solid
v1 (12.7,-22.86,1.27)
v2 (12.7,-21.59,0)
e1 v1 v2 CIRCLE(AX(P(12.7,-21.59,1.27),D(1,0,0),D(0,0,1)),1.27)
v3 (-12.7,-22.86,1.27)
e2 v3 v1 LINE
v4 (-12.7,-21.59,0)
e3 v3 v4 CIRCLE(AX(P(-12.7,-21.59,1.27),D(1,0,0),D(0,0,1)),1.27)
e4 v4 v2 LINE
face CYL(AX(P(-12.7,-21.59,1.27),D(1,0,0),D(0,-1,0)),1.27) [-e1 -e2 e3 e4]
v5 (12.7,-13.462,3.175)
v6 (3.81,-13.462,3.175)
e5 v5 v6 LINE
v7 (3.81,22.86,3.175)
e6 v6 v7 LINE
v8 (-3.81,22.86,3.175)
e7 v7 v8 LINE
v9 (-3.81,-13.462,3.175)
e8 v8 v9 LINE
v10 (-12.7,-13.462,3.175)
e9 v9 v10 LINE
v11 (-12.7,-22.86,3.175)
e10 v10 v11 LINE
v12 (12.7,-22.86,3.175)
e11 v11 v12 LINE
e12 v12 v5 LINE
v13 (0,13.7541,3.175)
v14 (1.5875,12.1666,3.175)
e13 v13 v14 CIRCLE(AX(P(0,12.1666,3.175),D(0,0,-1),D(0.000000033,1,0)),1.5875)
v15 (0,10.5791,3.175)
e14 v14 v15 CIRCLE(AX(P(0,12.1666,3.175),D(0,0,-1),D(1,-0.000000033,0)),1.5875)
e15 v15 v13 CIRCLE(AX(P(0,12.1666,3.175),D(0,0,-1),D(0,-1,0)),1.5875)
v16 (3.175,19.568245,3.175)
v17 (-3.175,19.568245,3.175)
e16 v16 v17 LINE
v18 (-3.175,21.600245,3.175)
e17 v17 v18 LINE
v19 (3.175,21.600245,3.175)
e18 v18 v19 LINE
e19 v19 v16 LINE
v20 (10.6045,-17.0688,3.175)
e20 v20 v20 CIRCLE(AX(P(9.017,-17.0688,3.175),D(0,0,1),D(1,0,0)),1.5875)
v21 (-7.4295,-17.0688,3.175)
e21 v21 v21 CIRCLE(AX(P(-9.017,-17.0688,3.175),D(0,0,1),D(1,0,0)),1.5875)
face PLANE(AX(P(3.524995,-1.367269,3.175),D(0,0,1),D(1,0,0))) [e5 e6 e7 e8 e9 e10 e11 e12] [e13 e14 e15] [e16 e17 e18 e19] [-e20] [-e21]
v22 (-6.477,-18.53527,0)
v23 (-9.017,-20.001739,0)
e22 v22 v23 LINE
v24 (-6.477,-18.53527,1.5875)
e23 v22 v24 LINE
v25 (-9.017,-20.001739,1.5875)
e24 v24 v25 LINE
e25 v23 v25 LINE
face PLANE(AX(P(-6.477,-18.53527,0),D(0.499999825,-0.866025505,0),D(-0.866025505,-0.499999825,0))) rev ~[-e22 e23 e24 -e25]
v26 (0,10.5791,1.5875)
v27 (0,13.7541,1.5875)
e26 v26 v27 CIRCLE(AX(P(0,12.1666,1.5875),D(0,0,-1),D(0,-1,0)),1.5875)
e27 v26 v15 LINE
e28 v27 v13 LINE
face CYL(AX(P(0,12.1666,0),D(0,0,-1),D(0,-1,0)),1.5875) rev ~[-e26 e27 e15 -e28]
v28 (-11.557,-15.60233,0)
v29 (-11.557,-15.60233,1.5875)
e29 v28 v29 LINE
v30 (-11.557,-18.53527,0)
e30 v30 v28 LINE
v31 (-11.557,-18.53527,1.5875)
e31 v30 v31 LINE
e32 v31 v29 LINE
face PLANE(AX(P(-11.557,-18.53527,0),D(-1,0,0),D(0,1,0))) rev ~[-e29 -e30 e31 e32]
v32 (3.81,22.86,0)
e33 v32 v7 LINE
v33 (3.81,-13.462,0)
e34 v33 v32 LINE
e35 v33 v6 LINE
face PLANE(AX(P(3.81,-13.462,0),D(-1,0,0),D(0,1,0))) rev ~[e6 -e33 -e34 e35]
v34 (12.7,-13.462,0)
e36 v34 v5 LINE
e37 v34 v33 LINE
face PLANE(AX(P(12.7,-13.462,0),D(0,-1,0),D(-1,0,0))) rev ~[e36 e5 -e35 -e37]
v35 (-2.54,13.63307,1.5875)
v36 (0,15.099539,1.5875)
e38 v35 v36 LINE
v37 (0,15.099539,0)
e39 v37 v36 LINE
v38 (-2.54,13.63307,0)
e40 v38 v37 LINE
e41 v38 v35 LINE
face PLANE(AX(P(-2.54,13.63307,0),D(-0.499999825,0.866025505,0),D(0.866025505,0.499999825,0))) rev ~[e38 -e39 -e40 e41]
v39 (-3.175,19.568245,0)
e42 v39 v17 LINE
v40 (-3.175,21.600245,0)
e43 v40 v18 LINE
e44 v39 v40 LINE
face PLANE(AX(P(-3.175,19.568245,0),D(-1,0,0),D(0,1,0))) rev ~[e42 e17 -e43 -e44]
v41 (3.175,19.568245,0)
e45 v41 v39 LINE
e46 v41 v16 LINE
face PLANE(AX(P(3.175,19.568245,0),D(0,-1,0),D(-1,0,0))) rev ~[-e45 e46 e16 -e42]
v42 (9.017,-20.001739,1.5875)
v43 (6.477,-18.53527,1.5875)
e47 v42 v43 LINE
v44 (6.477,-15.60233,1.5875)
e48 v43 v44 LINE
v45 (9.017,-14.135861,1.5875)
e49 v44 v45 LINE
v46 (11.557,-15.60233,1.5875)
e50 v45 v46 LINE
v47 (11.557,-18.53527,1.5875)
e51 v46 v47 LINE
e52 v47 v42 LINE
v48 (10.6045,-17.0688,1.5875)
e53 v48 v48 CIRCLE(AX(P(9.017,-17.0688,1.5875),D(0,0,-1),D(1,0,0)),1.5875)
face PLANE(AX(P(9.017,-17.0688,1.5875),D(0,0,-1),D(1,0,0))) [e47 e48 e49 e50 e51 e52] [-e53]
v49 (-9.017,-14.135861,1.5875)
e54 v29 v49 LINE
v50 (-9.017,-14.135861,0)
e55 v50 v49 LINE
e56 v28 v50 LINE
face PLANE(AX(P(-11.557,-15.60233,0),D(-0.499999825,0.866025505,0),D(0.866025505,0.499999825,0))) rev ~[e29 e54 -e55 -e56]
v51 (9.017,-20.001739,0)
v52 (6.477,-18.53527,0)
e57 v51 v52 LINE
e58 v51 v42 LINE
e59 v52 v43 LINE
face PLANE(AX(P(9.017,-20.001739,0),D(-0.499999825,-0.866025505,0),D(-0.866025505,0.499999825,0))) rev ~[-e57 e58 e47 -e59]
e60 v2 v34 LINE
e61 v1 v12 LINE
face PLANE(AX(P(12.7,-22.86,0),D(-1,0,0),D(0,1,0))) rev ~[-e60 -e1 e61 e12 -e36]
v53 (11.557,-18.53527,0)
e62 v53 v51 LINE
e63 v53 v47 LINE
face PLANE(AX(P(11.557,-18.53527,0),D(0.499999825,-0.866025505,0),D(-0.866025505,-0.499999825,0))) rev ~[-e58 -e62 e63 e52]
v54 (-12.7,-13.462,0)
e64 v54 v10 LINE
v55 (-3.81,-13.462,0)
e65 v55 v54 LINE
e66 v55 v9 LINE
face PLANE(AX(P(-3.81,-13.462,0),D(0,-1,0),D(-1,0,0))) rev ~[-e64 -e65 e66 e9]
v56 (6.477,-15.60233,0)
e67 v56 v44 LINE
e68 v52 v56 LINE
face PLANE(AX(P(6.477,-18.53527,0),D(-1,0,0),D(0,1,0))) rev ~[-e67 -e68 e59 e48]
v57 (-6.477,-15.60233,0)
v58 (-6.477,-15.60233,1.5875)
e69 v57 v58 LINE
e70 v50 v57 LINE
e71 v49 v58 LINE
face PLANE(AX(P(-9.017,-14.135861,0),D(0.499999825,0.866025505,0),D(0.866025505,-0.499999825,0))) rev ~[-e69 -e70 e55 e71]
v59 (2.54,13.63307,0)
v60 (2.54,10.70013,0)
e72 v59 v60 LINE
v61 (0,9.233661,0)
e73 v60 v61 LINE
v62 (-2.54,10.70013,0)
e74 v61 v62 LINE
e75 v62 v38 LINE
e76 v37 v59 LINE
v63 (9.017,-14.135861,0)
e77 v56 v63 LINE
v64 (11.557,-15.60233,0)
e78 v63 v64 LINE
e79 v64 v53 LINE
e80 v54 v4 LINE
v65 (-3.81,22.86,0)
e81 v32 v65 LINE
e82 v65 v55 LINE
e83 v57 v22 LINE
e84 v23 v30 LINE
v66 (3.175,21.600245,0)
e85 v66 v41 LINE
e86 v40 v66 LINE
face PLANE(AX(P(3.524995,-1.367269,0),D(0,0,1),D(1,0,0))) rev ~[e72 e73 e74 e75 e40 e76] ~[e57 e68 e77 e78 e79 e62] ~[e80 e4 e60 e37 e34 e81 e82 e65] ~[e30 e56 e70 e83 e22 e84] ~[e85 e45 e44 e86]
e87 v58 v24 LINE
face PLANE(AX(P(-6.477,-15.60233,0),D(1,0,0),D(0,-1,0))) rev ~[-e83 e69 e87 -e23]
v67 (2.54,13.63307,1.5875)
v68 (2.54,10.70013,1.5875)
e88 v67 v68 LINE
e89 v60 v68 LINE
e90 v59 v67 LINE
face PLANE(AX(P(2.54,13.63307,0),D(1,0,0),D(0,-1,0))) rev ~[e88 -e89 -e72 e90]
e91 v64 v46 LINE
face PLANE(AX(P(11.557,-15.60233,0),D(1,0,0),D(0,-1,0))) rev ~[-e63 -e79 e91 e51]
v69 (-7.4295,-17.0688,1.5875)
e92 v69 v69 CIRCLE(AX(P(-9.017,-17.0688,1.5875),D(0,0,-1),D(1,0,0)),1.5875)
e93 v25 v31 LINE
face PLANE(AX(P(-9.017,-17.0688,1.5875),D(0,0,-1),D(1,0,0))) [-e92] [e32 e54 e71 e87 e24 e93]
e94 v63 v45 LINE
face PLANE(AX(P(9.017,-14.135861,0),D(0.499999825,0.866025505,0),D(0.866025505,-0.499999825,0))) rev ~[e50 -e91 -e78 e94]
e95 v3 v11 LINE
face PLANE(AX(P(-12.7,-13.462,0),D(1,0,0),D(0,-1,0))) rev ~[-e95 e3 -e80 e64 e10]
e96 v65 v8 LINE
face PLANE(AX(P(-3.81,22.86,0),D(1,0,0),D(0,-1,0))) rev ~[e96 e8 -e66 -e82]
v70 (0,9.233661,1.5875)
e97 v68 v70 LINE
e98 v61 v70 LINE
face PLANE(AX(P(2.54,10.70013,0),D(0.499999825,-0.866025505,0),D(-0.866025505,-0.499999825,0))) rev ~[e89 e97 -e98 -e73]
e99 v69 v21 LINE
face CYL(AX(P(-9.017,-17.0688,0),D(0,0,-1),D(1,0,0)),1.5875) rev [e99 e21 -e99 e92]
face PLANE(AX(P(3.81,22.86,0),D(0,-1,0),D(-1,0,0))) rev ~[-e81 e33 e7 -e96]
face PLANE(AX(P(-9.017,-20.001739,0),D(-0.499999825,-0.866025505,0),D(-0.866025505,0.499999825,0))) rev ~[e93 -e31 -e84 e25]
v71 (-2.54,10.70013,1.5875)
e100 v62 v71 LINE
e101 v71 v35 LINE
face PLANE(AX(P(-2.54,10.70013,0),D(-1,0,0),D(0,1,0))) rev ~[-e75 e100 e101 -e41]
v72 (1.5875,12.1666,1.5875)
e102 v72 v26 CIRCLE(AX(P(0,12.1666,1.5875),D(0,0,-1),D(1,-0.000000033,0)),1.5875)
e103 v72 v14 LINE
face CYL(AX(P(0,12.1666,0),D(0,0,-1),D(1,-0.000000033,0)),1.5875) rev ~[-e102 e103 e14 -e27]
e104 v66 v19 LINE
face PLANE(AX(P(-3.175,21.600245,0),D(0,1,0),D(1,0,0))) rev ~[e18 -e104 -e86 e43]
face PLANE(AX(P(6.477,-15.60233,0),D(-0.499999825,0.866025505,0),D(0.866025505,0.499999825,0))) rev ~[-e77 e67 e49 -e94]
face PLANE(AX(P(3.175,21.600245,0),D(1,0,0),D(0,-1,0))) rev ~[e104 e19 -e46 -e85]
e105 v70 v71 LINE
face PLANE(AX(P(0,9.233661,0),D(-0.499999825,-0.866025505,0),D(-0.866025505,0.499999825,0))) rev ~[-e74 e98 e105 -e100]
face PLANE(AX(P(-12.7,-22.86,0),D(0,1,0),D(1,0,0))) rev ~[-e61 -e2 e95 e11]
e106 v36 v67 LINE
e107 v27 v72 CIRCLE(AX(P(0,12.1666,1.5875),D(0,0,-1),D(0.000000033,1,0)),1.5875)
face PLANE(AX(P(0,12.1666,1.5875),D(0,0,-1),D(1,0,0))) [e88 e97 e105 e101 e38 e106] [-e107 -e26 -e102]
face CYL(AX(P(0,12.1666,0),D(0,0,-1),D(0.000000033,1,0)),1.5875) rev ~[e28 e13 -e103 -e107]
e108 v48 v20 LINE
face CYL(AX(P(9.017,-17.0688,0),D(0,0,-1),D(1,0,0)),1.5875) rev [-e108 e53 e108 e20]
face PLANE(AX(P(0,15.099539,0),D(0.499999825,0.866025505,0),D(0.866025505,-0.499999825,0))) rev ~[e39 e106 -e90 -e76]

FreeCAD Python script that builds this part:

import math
import FreeCAD as App
import Part
import Sketcher
Q = App.Units.Quantity


def edges_at(feature, points):
    """Names of the edges that pass closest to the given points."""
    edges = feature.Shape.Edges
    near = lambda p: min(range(len(edges)), key=lambda i: edges[i].distToShape(Part.Vertex(*p))[0])
    return sorted({f"Edge{near(p) + 1}" for p in points})

doc = App.newDocument("Part")
body = doc.addObject("PartDesign::Body", "Body")

# Sketch on XY plane
sketch1 = body.newObject("Sketcher::SketchObject", "Sketch")
sketch1.AttachmentSupport = (doc.getObject("XY_Plane"), [""])
sketch1.MapMode = "FlatFace"
sketch1.addGeometry(Part.LineSegment(App.Vector(12.7, -22.9, 0), App.Vector(12.7, -13.5, 0)), False)
sketch1.addGeometry(Part.LineSegment(App.Vector(12.7, -13.5, 0), App.Vector(3.8, -13.5, 0)), False)
sketch1.addGeometry(Part.LineSegment(App.Vector(3.8, -13.5, 0), App.Vector(3.8, 22.9, 0)), False)
sketch1.addGeometry(Part.LineSegment(App.Vector(3.8, 22.9, 0), App.Vector(-3.8, 22.9, 0)), False)
sketch1.addGeometry(Part.LineSegment(App.Vector(-3.8, 22.9, 0), App.Vector(-3.8, -13.5, 0)), False)
sketch1.addGeometry(Part.LineSegment(App.Vector(-3.8, -13.5, 0), App.Vector(-12.7, -13.5, 0)), False)
sketch1.addGeometry(Part.LineSegment(App.Vector(-12.7, -13.5, 0), App.Vector(-12.7, -22.9, 0)), False)
sketch1.addGeometry(Part.LineSegment(App.Vector(-12.7, -22.9, 0), App.Vector(12.7, -22.9, 0)), False)
sketch1.addGeometry(Part.Circle(App.Vector(-9, -17.1, 0), App.Vector(0, 0, 1), 1.6), False)
sketch1.addGeometry(Part.Circle(App.Vector(9, -17.1, 0), App.Vector(0, 0, 1), 1.6), False)
sketch1.addGeometry(Part.LineSegment(App.Vector(3.2, 19.6, 0), App.Vector(-3.2, 19.6, 0)), False)
sketch1.addGeometry(Part.LineSegment(App.Vector(-3.2, 19.6, 0), App.Vector(-3.2, 21.6, 0)), False)
sketch1.addGeometry(Part.LineSegment(App.Vector(-3.2, 21.6, 0), App.Vector(3.2, 21.6, 0)), False)
sketch1.addGeometry(Part.LineSegment(App.Vector(3.2, 21.6, 0), App.Vector(3.2, 19.6, 0)), False)
sketch1.addGeometry(Part.ArcOfCircle(Part.Circle(App.Vector(0, 12.2, 0), App.Vector(0, 0, 1), 1.6), math.radians(0), math.radians(90)), False)
sketch1.addGeometry(Part.ArcOfCircle(Part.Circle(App.Vector(0, 12.2, 0), App.Vector(0, 0, 1), 1.6), math.radians(-90), math.radians(0)), False)
sketch1.addGeometry(Part.ArcOfCircle(Part.Circle(App.Vector(0, 12.2, 0), App.Vector(0, 0, 1), 1.6), math.radians(90), math.radians(270)), False)
sketch1.addConstraint(Sketcher.Constraint("Coincident", 0, 2, 1, 1))
sketch1.addConstraint(Sketcher.Constraint("Coincident", 1, 2, 2, 1))
sketch1.addConstraint(Sketcher.Constraint("Coincident", 2, 2, 3, 1))
sketch1.addConstraint(Sketcher.Constraint("Coincident", 3, 2, 4, 1))
sketch1.addConstraint(Sketcher.Constraint("Coincident", 4, 2, 5, 1))
sketch1.addConstraint(Sketcher.Constraint("Coincident", 5, 2, 6, 1))
sketch1.addConstraint(Sketcher.Constraint("Coincident", 6, 2, 7, 1))
sketch1.addConstraint(Sketcher.Constraint("Coincident", 7, 2, 0, 1))
sketch1.addConstraint(Sketcher.Constraint("Coincident", 10, 2, 11, 1))
sketch1.addConstraint(Sketcher.Constraint("Coincident", 11, 2, 12, 1))
sketch1.addConstraint(Sketcher.Constraint("Coincident", 12, 2, 13, 1))
sketch1.addConstraint(Sketcher.Constraint("Coincident", 13, 2, 10, 1))
sketch1.addConstraint(Sketcher.Constraint("Tangent", 14, 1, 15, 2))
sketch1.addConstraint(Sketcher.Constraint("Tangent", 15, 1, 16, 2))
sketch1.addConstraint(Sketcher.Constraint("Tangent", 16, 1, 14, 2))
sketch1.addConstraint(Sketcher.Constraint("Vertical", 0))
sketch1.addConstraint(Sketcher.Constraint("Horizontal", 1))
sketch1.addConstraint(Sketcher.Constraint("Vertical", 2))
sketch1.addConstraint(Sketcher.Constraint("Horizontal", 3))
sketch1.addConstraint(Sketcher.Constraint("Vertical", 4))
sketch1.addConstraint(Sketcher.Constraint("Horizontal", 5))
sketch1.addConstraint(Sketcher.Constraint("Vertical", 6))
sketch1.addConstraint(Sketcher.Constraint("Horizontal", 7))
sketch1.addConstraint(Sketcher.Constraint("Horizontal", 10))
sketch1.addConstraint(Sketcher.Constraint("Vertical", 11))
sketch1.addConstraint(Sketcher.Constraint("Horizontal", 12))
sketch1.addConstraint(Sketcher.Constraint("Vertical", 13))
sketch1.addConstraint(Sketcher.Constraint("Equal", 8, 9))
sketch1.addConstraint(Sketcher.Constraint("Equal", 9, 14))
sketch1.addConstraint(Sketcher.Constraint("Symmetric", 8, 3, 9, 3, -2))
sketch1.addConstraint(Sketcher.Constraint("Symmetric", 1, 2, 4, 2, -2))
sketch1.addConstraint(Sketcher.Constraint("PointOnObject", 14, 3, -2))
sketch1.addConstraint(Sketcher.Constraint("PointOnObject", 15, 1, -2))
sketch1.addConstraint(Sketcher.Constraint("PointOnObject", 16, 1, -2))
sketch1.addConstraint(Sketcher.Constraint("Horizontal", 16, 3, 14, 1))
sketch1.addConstraint(Sketcher.Constraint("Equal", 1, 5))
sketch1.addConstraint(Sketcher.Constraint("DistanceX", 7, 1, 7, 2, Q("1 in")))
sketch1.addConstraint(Sketcher.Constraint("Diameter", 8, Q("0.125 in")))
sketch1.addConstraint(Sketcher.Constraint("DistanceX", 3, 2, 3, 1, Q("0.3 in")))
sketch1.addConstraint(Sketcher.Constraint("DistanceX", 10, 2, 10, 1, Q("0.25 in")))
sketch1.addConstraint(Sketcher.Constraint("DistanceY", 0, 1, 0, 2, Q("0.37 in")))
sketch1.addConstraint(Sketcher.Constraint("DistanceY", 2, 1, 2, 2, Q("1.43 in")))
sketch1.addConstraint(Sketcher.Constraint("DistanceY", 11, 1, 11, 2, Q("0.08 in")))
sketch1.addConstraint(Sketcher.Constraint("DistanceY", -1, 1, 2, 2, Q("0.9 in")))
sketch1.addConstraint(Sketcher.Constraint("DistanceX", 8, 3, 9, 3, Q("0.71 in")))
sketch1.addConstraint(Sketcher.Constraint("DistanceY", 8, 3, -1, 1, Q("0.672 in")))
sketch1.addConstraint(Sketcher.Constraint("DistanceY", -1, 1, 14, 3, Q("0.479 in")))
sketch1.addConstraint(Sketcher.Constraint("DistanceX", 10, 2, -1, 1, Q("0.125 in")))
sketch1.addConstraint(Sketcher.Constraint("DistanceY", -1, 1, 10, 2, 19.568245))
pad1 = body.newObject("PartDesign::Pad", "Pad")
pad1.Profile = sketch1
pad1.Length = Q("0.125 in")
doc.recompute()

fillet = body.newObject("PartDesign::Fillet", "Fillet")
fillet.Base = (pad1, edges_at(pad1, [(0, -22.86, 0)]))
fillet.Radius = Q("0.05 in")

# Sketch on XY plane
sketch2 = body.newObject("Sketcher::SketchObject", "Sketch001")
sketch2.AttachmentSupport = (doc.getObject("XY_Plane"), [""])
sketch2.MapMode = "FlatFace"
sketch2.addGeometry(Part.LineSegment(App.Vector(-6.5, -18.5, 0), App.Vector(-9, -20, 0)), False)
sketch2.addGeometry(Part.LineSegment(App.Vector(-9, -20, 0), App.Vector(-11.6, -18.5, 0)), False)
sketch2.addGeometry(Part.LineSegment(App.Vector(-11.6, -18.5, 0), App.Vector(-11.6, -15.6, 0)), False)
sketch2.addGeometry(Part.LineSegment(App.Vector(-11.6, -15.6, 0), App.Vector(-9, -14.1, 0)), False)
sketch2.addGeometry(Part.LineSegment(App.Vector(-9, -14.1, 0), App.Vector(-6.5, -15.6, 0)), False)
sketch2.addGeometry(Part.LineSegment(App.Vector(-6.5, -15.6, 0), App.Vector(-6.5, -18.5, 0)), False)
sketch2.addGeometry(Part.LineSegment(App.Vector(9, -20, 0), App.Vector(6.5, -18.5, 0)), False)
sketch2.addGeometry(Part.LineSegment(App.Vector(6.5, -18.5, 0), App.Vector(6.5, -15.6, 0)), False)
sketch2.addGeometry(Part.LineSegment(App.Vector(6.5, -15.6, 0), App.Vector(9, -14.1, 0)), False)
sketch2.addGeometry(Part.LineSegment(App.Vector(9, -14.1, 0), App.Vector(11.6, -15.6, 0)), False)
sketch2.addGeometry(Part.LineSegment(App.Vector(11.6, -15.6, 0), App.Vector(11.6, -18.5, 0)), False)
sketch2.addGeometry(Part.LineSegment(App.Vector(11.6, -18.5, 0), App.Vector(9, -20, 0)), False)
sketch2.addGeometry(Part.LineSegment(App.Vector(2.5, 10.7, 0), App.Vector(0, 9.2, 0)), False)
sketch2.addGeometry(Part.LineSegment(App.Vector(0, 9.2, 0), App.Vector(-2.5, 10.7, 0)), False)
sketch2.addGeometry(Part.LineSegment(App.Vector(-2.5, 10.7, 0), App.Vector(-2.5, 13.6, 0)), False)
sketch2.addGeometry(Part.LineSegment(App.Vector(-2.5, 13.6, 0), App.Vector(0, 15.1, 0)), False)
sketch2.addGeometry(Part.LineSegment(App.Vector(0, 15.1, 0), App.Vector(2.5, 13.6, 0)), False)
sketch2.addGeometry(Part.LineSegment(App.Vector(2.5, 13.6, 0), App.Vector(2.5, 10.7, 0)), False)
sketch2.addConstraint(Sketcher.Constraint("Coincident", 0, 2, 1, 1))
sketch2.addConstraint(Sketcher.Constraint("Coincident", 1, 2, 2, 1))
sketch2.addConstraint(Sketcher.Constraint("Coincident", 2, 2, 3, 1))
sketch2.addConstraint(Sketcher.Constraint("Coincident", 3, 2, 4, 1))
sketch2.addConstraint(Sketcher.Constraint("Coincident", 4, 2, 5, 1))
sketch2.addConstraint(Sketcher.Constraint("Coincident", 5, 2, 0, 1))
sketch2.addConstraint(Sketcher.Constraint("Coincident", 6, 2, 7, 1))
sketch2.addConstraint(Sketcher.Constraint("Coincident", 7, 2, 8, 1))
sketch2.addConstraint(Sketcher.Constraint("Coincident", 8, 2, 9, 1))
sketch2.addConstraint(Sketcher.Constraint("Coincident", 9, 2, 10, 1))
sketch2.addConstraint(Sketcher.Constraint("Coincident", 10, 2, 11, 1))
sketch2.addConstraint(Sketcher.Constraint("Coincident", 11, 2, 6, 1))
sketch2.addConstraint(Sketcher.Constraint("Coincident", 12, 2, 13, 1))
sketch2.addConstraint(Sketcher.Constraint("Coincident", 13, 2, 14, 1))
sketch2.addConstraint(Sketcher.Constraint("Coincident", 14, 2, 15, 1))
sketch2.addConstraint(Sketcher.Constraint("Coincident", 15, 2, 16, 1))
sketch2.addConstraint(Sketcher.Constraint("Coincident", 16, 2, 17, 1))
sketch2.addConstraint(Sketcher.Constraint("Coincident", 17, 2, 12, 1))
sketch2.addConstraint(Sketcher.Constraint("Vertical", 2))
sketch2.addConstraint(Sketcher.Constraint("Vertical", 5))
sketch2.addConstraint(Sketcher.Constraint("Vertical", 7))
sketch2.addConstraint(Sketcher.Constraint("Vertical", 10))
sketch2.addConstraint(Sketcher.Constraint("Vertical", 14))
sketch2.addConstraint(Sketcher.Constraint("Vertical", 17))
sketch2.addConstraint(Sketcher.Constraint("Symmetric", 5, 2, 6, 2, -2))
sketch2.addConstraint(Sketcher.Constraint("Symmetric", 3, 2, 8, 2, -2))
sketch2.addConstraint(Sketcher.Constraint("Symmetric", 2, 2, 9, 2, -2))
sketch2.addConstraint(Sketcher.Constraint("Symmetric", 0, 2, 11, 2, -2))
sketch2.addConstraint(Sketcher.Constraint("Symmetric", 14, 2, 16, 2, -2))
sketch2.addConstraint(Sketcher.Constraint("PointOnObject", 12, 2, -2))
sketch2.addConstraint(Sketcher.Constraint("PointOnObject", 15, 2, -2))
sketch2.addConstraint(Sketcher.Constraint("Parallel", 0, 3))
sketch2.addConstraint(Sketcher.Constraint("Parallel", 1, 4))
sketch2.addConstraint(Sketcher.Constraint("Parallel", 4, 6))
sketch2.addConstraint(Sketcher.Constraint("Parallel", 3, 8))
sketch2.addConstraint(Sketcher.Constraint("Parallel", 8, 11))
sketch2.addConstraint(Sketcher.Constraint("Parallel", 11, 12))
sketch2.addConstraint(Sketcher.Constraint("Parallel", 9, 13))
sketch2.addConstraint(Sketcher.Constraint("Parallel", 12, 15))
sketch2.addConstraint(Sketcher.Constraint("Horizontal", 2, 2, 4, 2))
sketch2.addConstraint(Sketcher.Constraint("Horizontal", 1, 2, 5, 2))
sketch2.addConstraint(Sketcher.Constraint("Equal", 10, 14))
sketch2.addConstraint(Sketcher.Constraint("Equal", 11, 12))
sketch2.addConstraint(Sketcher.Constraint("Angle", 0, Q("-150.000012 deg")))
sketch2.addConstraint(Sketcher.Constraint("DistanceX", 13, 2, -1, 1, Q("0.1 in")))
sketch2.addConstraint(Sketcher.Constraint("DistanceX", 5, 2, 6, 2, Q("0.51 in")))
sketch2.addConstraint(Sketcher.Constraint("DistanceY", 4, 2, 14, 2, Q("1.151 in")))
sketch2.addConstraint(Sketcher.Constraint("DistanceY", 2, 1, 2, 2, 2.93294))
sketch2.addConstraint(Sketcher.Constraint("DistanceY", 0, 2, -1, 1, 20.001739))
pocket1 = body.newObject("PartDesign::Pocket", "Pocket")
pocket1.Profile = sketch2
pocket1.Length = Q("0.0625 in")
pocket1.Reversed = True

doc.recompute()
